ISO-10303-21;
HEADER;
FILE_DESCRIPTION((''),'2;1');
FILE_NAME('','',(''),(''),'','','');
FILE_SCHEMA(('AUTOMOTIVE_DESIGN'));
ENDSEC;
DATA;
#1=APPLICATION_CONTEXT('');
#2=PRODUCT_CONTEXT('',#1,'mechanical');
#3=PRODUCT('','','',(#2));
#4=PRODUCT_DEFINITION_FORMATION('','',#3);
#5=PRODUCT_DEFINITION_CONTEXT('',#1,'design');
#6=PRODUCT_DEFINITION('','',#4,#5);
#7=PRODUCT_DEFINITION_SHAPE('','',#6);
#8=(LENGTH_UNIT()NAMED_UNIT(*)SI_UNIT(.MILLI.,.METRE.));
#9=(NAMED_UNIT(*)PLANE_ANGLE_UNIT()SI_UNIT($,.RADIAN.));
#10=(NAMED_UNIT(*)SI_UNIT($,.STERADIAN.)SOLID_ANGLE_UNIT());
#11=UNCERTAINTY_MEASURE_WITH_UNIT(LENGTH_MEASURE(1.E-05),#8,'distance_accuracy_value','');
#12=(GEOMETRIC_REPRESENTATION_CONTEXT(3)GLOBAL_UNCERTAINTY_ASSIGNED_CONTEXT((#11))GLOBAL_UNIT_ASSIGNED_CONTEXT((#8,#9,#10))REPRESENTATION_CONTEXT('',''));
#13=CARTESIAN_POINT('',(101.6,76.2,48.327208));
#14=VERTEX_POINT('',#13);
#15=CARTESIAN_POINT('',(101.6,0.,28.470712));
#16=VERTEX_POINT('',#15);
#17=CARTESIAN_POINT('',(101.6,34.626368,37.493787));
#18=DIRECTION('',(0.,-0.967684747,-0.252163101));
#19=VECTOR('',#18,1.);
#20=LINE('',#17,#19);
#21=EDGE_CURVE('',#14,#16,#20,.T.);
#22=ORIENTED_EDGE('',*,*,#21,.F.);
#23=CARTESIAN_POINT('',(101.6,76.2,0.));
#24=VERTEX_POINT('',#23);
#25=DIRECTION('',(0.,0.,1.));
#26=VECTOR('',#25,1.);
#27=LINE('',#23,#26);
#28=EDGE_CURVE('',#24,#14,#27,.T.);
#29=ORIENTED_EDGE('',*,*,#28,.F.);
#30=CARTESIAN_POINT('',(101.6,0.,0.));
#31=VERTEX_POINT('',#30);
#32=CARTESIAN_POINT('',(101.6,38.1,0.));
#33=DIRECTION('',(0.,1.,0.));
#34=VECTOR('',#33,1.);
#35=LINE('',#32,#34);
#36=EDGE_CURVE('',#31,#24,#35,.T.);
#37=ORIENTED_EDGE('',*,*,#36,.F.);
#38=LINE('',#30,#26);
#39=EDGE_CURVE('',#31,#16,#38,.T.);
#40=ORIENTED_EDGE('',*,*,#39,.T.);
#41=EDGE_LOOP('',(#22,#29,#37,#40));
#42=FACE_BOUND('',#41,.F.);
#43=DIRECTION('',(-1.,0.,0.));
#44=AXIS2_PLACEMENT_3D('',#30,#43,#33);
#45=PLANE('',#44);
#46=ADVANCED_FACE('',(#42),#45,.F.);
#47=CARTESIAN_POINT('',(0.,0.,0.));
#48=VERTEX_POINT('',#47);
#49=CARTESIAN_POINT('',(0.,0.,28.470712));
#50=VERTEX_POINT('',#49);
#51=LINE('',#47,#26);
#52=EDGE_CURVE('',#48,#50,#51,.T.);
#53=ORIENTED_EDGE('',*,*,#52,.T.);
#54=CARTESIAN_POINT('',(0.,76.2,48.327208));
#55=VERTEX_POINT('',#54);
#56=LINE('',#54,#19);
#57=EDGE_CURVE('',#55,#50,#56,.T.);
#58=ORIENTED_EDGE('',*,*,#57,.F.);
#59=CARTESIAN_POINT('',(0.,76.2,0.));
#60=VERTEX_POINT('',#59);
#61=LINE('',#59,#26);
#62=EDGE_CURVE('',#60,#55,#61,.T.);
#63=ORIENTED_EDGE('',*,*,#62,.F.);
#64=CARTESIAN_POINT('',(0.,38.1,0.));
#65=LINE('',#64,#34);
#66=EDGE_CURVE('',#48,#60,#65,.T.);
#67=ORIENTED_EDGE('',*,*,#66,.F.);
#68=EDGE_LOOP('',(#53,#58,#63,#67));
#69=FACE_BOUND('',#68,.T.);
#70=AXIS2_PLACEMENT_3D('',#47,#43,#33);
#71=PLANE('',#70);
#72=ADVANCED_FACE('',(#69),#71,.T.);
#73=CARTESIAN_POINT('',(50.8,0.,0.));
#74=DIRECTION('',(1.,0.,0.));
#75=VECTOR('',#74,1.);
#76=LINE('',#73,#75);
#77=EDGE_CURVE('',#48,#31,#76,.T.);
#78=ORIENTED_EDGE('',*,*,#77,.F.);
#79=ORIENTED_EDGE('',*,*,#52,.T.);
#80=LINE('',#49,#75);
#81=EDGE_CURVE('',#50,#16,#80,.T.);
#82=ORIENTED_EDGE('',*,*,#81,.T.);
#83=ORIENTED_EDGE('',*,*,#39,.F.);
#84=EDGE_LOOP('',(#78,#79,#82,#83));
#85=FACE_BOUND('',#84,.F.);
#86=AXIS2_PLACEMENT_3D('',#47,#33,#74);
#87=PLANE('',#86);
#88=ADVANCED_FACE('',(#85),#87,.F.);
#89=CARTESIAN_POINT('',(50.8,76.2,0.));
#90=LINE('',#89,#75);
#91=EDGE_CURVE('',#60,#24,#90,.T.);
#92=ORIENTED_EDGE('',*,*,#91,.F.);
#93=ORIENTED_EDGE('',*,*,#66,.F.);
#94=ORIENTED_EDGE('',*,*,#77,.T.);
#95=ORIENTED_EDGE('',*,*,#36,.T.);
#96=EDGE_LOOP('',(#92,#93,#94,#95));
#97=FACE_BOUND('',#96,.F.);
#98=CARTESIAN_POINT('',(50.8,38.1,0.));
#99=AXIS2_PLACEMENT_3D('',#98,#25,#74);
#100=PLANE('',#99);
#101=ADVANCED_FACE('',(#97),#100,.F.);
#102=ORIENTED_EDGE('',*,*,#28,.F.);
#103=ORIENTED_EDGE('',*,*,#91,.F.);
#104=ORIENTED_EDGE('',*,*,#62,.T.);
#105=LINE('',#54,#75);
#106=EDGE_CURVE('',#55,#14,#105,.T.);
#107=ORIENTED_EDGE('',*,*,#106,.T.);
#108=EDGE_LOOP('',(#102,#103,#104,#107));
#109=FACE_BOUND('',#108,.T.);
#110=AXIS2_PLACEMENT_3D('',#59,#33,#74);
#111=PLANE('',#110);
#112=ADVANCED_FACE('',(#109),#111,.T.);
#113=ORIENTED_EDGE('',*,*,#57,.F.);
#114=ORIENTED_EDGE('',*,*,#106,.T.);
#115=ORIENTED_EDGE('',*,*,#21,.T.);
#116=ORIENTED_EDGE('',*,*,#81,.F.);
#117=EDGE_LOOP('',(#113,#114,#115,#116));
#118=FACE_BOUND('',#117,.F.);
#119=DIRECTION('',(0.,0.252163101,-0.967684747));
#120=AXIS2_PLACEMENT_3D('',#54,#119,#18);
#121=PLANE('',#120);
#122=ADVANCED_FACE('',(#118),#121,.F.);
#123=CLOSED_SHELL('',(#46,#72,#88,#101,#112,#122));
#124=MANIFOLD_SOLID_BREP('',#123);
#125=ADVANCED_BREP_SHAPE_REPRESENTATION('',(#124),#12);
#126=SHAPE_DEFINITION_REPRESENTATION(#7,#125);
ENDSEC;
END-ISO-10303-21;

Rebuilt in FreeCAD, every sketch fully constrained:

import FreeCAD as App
import Part
import Sketcher

V = App.Vector
Q = App.Units.Quantity


def add_polygon(sketch, points):
    """Adds a closed chain of lines whose ends are joined by coincident constraints."""
    first, n = sketch.GeometryCount, len(points)
    for a, b in zip(points, points[1:] + points[:1]):
        sketch.addGeometry(Part.LineSegment(App.Vector(*a, 0), App.Vector(*b, 0)), False)
    for i in range(n):
        sketch.addConstraint(Sketcher.Constraint("Coincident", first + i, 2, first + (i + 1) % n, 1))

doc = App.newDocument("Part")
body = doc.addObject("PartDesign::Body", "Body")

# Sketch on XY plane
sketch1 = doc.addObject("Sketcher::SketchObject", "Sketch")
body.addObject(sketch1)
sketch1.AttachmentSupport = (doc.XY_Plane, [""])
sketch1.MapMode = "FlatFace"
add_polygon(sketch1, [(0, 76), (0, 0), (102, 0), (102, 76)])  # lines 0-3
sketch1.addConstraint(Sketcher.Constraint("Vertical", 0))
sketch1.addConstraint(Sketcher.Constraint("Horizontal", 1))
sketch1.addConstraint(Sketcher.Constraint("Vertical", 2))
sketch1.addConstraint(Sketcher.Constraint("Horizontal", 3))
sketch1.addConstraint(Sketcher.Constraint("Coincident", 0, 2, -1, 1))
sketch1.addConstraint(Sketcher.Constraint("DistanceX", 1, 1, 1, 2, Q("4 in")))
sketch1.addConstraint(Sketcher.Constraint("DistanceY", 0, 2, 0, 1, Q("3 in")))
pad1 = doc.addObject("PartDesign::Pad", "Pad")
body.addObject(pad1)
pad1.Profile = sketch1
pad1.Length = Q("3 in")

# Sketch on YZ plane
sketch2 = doc.addObject("Sketcher::SketchObject", "Sketch001")
body.addObject(sketch2)
sketch2.AttachmentSupport = (doc.YZ_Plane, [""])
sketch2.MapMode = "FlatFace"
add_polygon(sketch2, [(0, 76), (76, 76), (76, 48), (0, 28)])  # lines 0-3
sketch2.addConstraint(Sketcher.Constraint("Horizontal", 0))
sketch2.addConstraint(Sketcher.Constraint("Vertical", 1))
sketch2.addConstraint(Sketcher.Constraint("Vertical", 3))
sketch2.addConstraint(Sketcher.Constraint("PointOnObject", 2, 2, -2))
sketch2.addConstraint(Sketcher.Constraint("DistanceX", 0, 1, 0, 2, Q("3 in")))
sketch2.addConstraint(Sketcher.Constraint("DistanceY", -1, 1, 0, 2, Q("3 in")))
sketch2.addConstraint(Sketcher.Constraint("DistanceY", 3, 1, 3, 2, 47.729288))
sketch2.addConstraint(Sketcher.Constraint("DistanceY", 1, 2, 1, 1, 27.872792))
pocket1 = doc.addObject("PartDesign::Pocket", "Pocket")
body.addObject(pocket1)
pocket1.Profile = sketch2
pocket1.Length = Q("5 in")
pocket1.Reversed = True

doc.recompute()
